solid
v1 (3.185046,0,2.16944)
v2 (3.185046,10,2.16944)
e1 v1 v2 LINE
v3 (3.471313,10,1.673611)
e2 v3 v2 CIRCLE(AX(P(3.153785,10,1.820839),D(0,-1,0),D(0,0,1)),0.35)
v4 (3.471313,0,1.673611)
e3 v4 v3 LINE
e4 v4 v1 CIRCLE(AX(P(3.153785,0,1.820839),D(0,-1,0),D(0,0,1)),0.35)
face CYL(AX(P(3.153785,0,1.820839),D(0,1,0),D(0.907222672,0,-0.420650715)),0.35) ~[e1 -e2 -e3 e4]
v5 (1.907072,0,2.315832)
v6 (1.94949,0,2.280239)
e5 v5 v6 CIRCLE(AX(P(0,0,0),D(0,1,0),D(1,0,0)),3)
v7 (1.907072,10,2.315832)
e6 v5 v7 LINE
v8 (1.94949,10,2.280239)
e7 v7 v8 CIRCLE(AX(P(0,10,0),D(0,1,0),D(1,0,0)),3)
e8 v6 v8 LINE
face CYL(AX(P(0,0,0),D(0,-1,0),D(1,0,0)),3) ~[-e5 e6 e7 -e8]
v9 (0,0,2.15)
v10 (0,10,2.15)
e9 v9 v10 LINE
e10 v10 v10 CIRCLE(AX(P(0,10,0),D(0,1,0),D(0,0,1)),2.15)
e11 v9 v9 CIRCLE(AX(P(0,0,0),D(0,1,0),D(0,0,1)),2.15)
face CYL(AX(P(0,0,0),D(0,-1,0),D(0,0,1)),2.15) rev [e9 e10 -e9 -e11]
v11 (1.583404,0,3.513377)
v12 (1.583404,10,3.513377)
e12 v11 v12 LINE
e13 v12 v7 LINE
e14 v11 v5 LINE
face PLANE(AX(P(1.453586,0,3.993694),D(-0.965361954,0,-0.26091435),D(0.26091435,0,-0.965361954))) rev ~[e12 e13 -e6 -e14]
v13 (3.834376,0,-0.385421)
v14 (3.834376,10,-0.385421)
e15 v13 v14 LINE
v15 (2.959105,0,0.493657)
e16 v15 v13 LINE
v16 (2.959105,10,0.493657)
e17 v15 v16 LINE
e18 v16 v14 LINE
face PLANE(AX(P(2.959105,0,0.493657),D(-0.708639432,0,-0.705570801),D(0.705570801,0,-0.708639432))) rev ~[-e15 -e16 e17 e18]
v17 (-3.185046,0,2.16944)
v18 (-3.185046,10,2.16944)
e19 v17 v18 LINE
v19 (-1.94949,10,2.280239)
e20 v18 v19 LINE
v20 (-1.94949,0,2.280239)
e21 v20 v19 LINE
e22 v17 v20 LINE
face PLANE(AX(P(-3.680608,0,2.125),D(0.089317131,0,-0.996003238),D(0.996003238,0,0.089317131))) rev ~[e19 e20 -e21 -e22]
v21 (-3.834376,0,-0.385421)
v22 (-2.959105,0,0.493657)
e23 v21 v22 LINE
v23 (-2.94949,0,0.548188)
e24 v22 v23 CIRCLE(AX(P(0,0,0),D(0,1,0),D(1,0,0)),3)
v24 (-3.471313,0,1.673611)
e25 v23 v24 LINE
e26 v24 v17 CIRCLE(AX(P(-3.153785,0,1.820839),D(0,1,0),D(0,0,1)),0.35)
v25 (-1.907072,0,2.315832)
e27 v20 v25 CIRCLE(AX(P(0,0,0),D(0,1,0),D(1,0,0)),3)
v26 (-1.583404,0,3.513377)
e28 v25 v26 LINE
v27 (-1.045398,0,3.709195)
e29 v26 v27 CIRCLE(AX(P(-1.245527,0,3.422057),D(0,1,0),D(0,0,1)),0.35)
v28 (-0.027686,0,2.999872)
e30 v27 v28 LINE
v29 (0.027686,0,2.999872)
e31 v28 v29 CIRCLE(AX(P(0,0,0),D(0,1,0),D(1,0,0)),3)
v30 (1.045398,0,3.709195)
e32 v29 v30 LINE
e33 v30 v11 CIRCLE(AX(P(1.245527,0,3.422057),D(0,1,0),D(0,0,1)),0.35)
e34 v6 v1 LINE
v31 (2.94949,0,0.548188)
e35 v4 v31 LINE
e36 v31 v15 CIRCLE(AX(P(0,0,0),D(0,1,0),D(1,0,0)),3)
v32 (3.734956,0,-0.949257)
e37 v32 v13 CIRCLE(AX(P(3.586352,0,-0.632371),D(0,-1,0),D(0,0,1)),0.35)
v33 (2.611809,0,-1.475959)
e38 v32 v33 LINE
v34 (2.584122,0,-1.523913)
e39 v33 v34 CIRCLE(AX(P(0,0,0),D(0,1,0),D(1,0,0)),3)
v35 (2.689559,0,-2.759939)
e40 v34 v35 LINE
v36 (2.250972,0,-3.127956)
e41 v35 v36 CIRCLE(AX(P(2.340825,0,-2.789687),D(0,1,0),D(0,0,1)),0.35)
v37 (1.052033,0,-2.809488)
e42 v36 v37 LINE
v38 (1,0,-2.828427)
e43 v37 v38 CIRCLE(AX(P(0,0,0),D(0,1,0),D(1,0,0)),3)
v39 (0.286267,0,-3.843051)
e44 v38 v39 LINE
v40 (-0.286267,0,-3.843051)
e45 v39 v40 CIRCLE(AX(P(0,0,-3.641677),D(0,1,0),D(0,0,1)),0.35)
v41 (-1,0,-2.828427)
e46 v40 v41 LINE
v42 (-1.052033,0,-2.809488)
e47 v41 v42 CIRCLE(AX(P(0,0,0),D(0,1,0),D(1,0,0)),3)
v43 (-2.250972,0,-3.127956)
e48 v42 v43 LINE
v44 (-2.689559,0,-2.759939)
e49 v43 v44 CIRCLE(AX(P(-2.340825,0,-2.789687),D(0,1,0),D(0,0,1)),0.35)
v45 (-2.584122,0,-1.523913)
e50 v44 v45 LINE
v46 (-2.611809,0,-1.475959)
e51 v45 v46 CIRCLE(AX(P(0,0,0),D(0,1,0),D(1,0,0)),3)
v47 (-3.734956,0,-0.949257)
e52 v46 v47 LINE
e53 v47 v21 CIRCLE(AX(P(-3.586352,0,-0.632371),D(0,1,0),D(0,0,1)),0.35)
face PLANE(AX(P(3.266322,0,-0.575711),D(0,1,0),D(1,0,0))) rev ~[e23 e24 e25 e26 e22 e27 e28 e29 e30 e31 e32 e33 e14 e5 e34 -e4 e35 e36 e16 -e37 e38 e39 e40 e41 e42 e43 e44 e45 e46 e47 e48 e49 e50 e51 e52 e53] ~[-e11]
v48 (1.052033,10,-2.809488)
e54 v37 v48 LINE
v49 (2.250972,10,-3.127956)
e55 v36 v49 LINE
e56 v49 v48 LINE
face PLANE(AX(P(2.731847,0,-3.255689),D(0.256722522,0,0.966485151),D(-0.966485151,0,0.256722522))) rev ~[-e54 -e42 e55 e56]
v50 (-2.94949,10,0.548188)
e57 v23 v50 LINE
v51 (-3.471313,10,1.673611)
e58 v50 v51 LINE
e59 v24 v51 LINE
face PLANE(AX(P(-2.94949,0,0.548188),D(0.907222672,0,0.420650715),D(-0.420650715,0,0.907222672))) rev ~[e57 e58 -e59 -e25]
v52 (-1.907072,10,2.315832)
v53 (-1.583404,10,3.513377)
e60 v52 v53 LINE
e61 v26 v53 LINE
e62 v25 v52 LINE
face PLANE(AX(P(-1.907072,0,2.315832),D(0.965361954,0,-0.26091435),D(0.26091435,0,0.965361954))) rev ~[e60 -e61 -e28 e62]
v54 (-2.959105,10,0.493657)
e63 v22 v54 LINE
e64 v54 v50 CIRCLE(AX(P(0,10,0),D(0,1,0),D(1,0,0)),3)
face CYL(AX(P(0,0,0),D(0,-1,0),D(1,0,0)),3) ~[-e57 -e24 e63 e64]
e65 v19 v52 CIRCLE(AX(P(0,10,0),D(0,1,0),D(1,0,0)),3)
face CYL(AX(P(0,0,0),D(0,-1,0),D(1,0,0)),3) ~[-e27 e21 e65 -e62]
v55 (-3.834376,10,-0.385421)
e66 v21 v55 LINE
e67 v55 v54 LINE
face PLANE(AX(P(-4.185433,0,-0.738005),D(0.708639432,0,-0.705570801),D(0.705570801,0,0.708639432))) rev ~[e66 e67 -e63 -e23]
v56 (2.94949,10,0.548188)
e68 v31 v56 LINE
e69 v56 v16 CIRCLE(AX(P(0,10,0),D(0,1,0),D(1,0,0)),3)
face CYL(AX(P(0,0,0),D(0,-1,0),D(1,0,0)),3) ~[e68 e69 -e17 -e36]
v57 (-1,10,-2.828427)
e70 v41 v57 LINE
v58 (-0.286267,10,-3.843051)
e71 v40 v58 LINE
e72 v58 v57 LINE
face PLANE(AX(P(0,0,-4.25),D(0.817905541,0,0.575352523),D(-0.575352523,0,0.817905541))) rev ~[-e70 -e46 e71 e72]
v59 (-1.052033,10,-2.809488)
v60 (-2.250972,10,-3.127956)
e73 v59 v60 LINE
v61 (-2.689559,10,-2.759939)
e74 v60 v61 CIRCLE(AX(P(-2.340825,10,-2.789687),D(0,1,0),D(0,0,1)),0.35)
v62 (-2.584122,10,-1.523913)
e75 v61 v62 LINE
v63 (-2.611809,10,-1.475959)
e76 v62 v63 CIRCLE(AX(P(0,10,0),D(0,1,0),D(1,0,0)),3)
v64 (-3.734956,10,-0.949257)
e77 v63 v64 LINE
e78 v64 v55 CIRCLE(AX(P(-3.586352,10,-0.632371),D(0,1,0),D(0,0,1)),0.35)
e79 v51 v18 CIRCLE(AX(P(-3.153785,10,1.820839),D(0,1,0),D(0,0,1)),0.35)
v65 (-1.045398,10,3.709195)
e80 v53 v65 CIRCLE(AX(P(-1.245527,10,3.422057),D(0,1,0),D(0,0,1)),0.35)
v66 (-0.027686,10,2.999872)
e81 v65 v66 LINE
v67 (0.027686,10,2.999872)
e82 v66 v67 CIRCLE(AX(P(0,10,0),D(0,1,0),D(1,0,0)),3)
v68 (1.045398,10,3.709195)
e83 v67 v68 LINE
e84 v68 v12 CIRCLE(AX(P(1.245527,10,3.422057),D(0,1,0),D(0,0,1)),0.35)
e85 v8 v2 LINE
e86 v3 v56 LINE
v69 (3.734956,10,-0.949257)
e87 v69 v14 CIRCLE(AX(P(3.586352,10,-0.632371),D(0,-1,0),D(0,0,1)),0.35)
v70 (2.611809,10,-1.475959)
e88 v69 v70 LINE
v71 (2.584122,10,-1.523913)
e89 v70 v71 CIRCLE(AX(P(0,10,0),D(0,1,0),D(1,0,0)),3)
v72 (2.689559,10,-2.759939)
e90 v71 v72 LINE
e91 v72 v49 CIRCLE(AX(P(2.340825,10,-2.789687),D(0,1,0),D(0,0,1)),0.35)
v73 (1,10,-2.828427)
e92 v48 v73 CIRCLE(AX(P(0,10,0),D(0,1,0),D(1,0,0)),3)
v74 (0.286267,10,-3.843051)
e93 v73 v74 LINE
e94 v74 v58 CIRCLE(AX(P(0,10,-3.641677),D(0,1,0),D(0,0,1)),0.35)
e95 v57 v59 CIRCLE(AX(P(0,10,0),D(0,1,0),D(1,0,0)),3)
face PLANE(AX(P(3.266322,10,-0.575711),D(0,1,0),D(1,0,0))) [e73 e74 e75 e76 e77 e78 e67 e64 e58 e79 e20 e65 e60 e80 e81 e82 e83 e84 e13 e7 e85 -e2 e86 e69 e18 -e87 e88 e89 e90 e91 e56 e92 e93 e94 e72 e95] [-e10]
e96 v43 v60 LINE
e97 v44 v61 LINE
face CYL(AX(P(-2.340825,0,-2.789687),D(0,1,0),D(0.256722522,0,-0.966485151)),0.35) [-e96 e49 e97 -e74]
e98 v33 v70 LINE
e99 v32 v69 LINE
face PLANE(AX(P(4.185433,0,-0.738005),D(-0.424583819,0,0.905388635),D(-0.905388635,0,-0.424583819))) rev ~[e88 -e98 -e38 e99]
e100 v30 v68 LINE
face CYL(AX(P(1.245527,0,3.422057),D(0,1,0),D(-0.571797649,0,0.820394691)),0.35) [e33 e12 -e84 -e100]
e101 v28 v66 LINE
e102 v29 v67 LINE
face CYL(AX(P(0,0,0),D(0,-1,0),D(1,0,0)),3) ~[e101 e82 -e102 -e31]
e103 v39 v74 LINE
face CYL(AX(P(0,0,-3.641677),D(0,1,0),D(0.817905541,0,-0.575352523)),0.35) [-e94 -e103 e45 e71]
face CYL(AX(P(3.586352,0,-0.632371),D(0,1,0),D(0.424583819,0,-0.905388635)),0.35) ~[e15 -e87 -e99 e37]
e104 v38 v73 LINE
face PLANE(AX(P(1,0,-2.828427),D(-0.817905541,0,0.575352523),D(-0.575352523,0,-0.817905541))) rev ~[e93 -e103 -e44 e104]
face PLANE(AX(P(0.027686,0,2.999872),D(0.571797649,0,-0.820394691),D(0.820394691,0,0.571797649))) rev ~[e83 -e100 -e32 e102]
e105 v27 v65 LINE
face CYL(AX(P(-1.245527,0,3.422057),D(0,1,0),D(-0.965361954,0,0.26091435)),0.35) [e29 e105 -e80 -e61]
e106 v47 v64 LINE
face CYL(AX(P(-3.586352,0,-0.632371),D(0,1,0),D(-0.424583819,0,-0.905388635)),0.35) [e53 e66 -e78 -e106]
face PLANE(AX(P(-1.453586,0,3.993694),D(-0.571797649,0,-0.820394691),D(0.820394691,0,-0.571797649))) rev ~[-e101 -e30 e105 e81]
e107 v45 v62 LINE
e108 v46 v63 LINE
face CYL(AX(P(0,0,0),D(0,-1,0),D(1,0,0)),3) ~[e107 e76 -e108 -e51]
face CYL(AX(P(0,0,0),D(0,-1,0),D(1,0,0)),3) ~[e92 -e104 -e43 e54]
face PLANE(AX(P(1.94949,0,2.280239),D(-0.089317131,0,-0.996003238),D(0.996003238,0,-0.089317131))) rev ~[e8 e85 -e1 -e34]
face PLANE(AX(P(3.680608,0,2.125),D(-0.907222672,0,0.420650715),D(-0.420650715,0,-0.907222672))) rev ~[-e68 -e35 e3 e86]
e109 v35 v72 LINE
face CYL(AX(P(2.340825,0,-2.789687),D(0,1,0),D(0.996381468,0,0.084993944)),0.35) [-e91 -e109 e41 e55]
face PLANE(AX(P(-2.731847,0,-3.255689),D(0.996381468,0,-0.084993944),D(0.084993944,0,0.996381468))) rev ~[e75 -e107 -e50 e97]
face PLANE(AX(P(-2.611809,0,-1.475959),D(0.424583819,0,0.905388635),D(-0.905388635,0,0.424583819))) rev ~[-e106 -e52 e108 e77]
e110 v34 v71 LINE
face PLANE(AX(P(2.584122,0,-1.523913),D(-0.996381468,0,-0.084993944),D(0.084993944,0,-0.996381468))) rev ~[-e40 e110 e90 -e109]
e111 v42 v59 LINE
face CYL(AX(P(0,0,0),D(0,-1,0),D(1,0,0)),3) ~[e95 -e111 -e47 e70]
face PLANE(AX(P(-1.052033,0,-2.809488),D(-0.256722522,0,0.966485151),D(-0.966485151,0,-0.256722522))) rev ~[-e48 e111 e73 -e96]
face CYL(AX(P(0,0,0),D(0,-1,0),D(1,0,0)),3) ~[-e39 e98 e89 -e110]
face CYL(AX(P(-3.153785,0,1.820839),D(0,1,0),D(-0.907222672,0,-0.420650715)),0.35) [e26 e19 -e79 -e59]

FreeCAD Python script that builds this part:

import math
import FreeCAD as App
import Part
import Sketcher

V = App.Vector
Q = App.Units.Quantity


def edges_at(feature, points):
    """Names of the edges that pass closest to the given points."""
    edges = feature.Shape.Edges
    near = lambda p: min(range(len(edges)), key=lambda i: edges[i].distToShape(Part.Vertex(*p))[0])
    return sorted({f"Edge{near(p) + 1}" for p in points})

doc = App.newDocument("Part")
body = doc.addObject("PartDesign::Body", "Body")

sketch1 = doc.addObject("Sketcher::SketchObject", "Sketch")
body.addObject(sketch1)
sketch1.AttachmentSupport = (doc.XZ_Plane, [""])
sketch1.MapMode = "FlatFace"
sketch1.addGeometry(Part.LineSegment(V(1, -2.83, 0), V(0, -4.25, 0)), False)
sketch1.addGeometry(Part.LineSegment(V(0, -4.25, 0), V(-1, -2.83, 0)), False)
sketch1.addGeometry(Part.ArcOfCircle(Part.Circle(V(0, 0, 0), V(0, 0, 1), 3), math.radians(-110.53), math.radians(-109.47)), False)
sketch1.addGeometry(Part.LineSegment(V(-1.05, -2.81, 0), V(-2.73, -3.26, 0)), False)
sketch1.addGeometry(Part.LineSegment(V(-2.73, -3.26, 0), V(-2.58, -1.52, 0)), False)
sketch1.addGeometry(Part.ArcOfCircle(Part.Circle(V(0, 0, 0), V(0, 0, 1), 3), math.radians(-150.53), math.radians(-149.47)), False)
sketch1.addGeometry(Part.LineSegment(V(-2.61, -1.48, 0), V(-4.19, -0.74, 0)), False)
sketch1.addGeometry(Part.LineSegment(V(-4.19, -0.74, 0), V(-2.96, 0.49, 0)), False)
sketch1.addGeometry(Part.ArcOfCircle(Part.Circle(V(0, 0, 0), V(0, 0, 1), 3), math.radians(169.47), math.radians(170.53)), False)
sketch1.addGeometry(Part.LineSegment(V(-2.95, 0.55, 0), V(-3.68, 2.12, 0)), False)
sketch1.addGeometry(Part.LineSegment(V(-3.68, 2.12, 0), V(-1.95, 2.28, 0)), False)
sketch1.addGeometry(Part.ArcOfCircle(Part.Circle(V(0, 0, 0), V(0, 0, 1), 3), math.radians(129.47), math.radians(130.53)), False)
sketch1.addGeometry(Part.LineSegment(V(-1.91, 2.32, 0), V(-1.45, 3.99, 0)), False)
sketch1.addGeometry(Part.LineSegment(V(-1.45, 3.99, 0), V(-0.03, 3, 0)), False)
sketch1.addGeometry(Part.ArcOfCircle(Part.Circle(V(0, 0, 0), V(0, 0, 1), 3), math.radians(89.47), math.radians(90.53)), False)
sketch1.addGeometry(Part.LineSegment(V(0.03, 3, 0), V(1.45, 3.99, 0)), False)
sketch1.addGeometry(Part.LineSegment(V(1.45, 3.99, 0), V(1.91, 2.32, 0)), False)
sketch1.addGeometry(Part.ArcOfCircle(Part.Circle(V(0, 0, 0), V(0, 0, 1), 3), math.radians(49.47), math.radians(50.53)), False)
sketch1.addGeometry(Part.LineSegment(V(1.95, 2.28, 0), V(3.68, 2.12, 0)), False)
sketch1.addGeometry(Part.LineSegment(V(3.68, 2.12, 0), V(2.95, 0.55, 0)), False)
sketch1.addGeometry(Part.ArcOfCircle(Part.Circle(V(0, 0, 0), V(0, 0, 1), 3), math.radians(9.47), math.radians(10.53)), False)
sketch1.addGeometry(Part.LineSegment(V(2.96, 0.49, 0), V(4.19, -0.74, 0)), False)
sketch1.addGeometry(Part.LineSegment(V(4.19, -0.74, 0), V(2.61, -1.48, 0)), False)
sketch1.addGeometry(Part.ArcOfCircle(Part.Circle(V(0, 0, 0), V(0, 0, 1), 3), math.radians(-30.53), math.radians(-29.47)), False)
sketch1.addGeometry(Part.LineSegment(V(2.58, -1.52, 0), V(2.73, -3.26, 0)), False)
sketch1.addGeometry(Part.LineSegment(V(2.73, -3.26, 0), V(1.05, -2.81, 0)), False)
sketch1.addGeometry(Part.ArcOfCircle(Part.Circle(V(0, 0, 0), V(0, 0, 1), 3), math.radians(-70.53), math.radians(-69.47)), False)
sketch1.addGeometry(Part.Circle(V(0, 0, 0), V(0, 0, 1), 2.15), False)
sketch1.addConstraint(Sketcher.Constraint("Coincident", 0, 2, 1, 1))
sketch1.addConstraint(Sketcher.Constraint("Coincident", 1, 2, 2, 2))
sketch1.addConstraint(Sketcher.Constraint("Coincident", 2, 1, 3, 1))
sketch1.addConstraint(Sketcher.Constraint("Coincident", 3, 2, 4, 1))
sketch1.addConstraint(Sketcher.Constraint("Coincident", 4, 2, 5, 2))
sketch1.addConstraint(Sketcher.Constraint("Coincident", 5, 1, 6, 1))
sketch1.addConstraint(Sketcher.Constraint("Coincident", 6, 2, 7, 1))
sketch1.addConstraint(Sketcher.Constraint("Coincident", 7, 2, 8, 2))
sketch1.addConstraint(Sketcher.Constraint("Coincident", 8, 1, 9, 1))
sketch1.addConstraint(Sketcher.Constraint("Coincident", 9, 2, 10, 1))
sketch1.addConstraint(Sketcher.Constraint("Coincident", 10, 2, 11, 2))
sketch1.addConstraint(Sketcher.Constraint("Coincident", 11, 1, 12, 1))
sketch1.addConstraint(Sketcher.Constraint("Coincident", 12, 2, 13, 1))
sketch1.addConstraint(Sketcher.Constraint("Coincident", 13, 2, 14, 2))
sketch1.addConstraint(Sketcher.Constraint("Coincident", 14, 1, 15, 1))
sketch1.addConstraint(Sketcher.Constraint("Coincident", 15, 2, 16, 1))
sketch1.addConstraint(Sketcher.Constraint("Coincident", 16, 2, 17, 2))
sketch1.addConstraint(Sketcher.Constraint("Coincident", 17, 1, 18, 1))
sketch1.addConstraint(Sketcher.Constraint("Coincident", 18, 2, 19, 1))
sketch1.addConstraint(Sketcher.Constraint("Coincident", 19, 2, 20, 2))
sketch1.addConstraint(Sketcher.Constraint("Coincident", 20, 1, 21, 1))
sketch1.addConstraint(Sketcher.Constraint("Coincident", 21, 2, 22, 1))
sketch1.addConstraint(Sketcher.Constraint("Coincident", 22, 2, 23, 2))
sketch1.addConstraint(Sketcher.Constraint("Coincident", 23, 1, 24, 1))
sketch1.addConstraint(Sketcher.Constraint("Coincident", 24, 2, 25, 1))
sketch1.addConstraint(Sketcher.Constraint("Coincident", 25, 2, 26, 2))
sketch1.addConstraint(Sketcher.Constraint("Coincident", 26, 1, 0, 1))
sketch1.addConstraint(Sketcher.Constraint("Coincident", 2, 3, -1, 1))
sketch1.addConstraint(Sketcher.Constraint("Coincident", 5, 3, -1, 1))
sketch1.addConstraint(Sketcher.Constraint("Coincident", 8, 3, -1, 1))
sketch1.addConstraint(Sketcher.Constraint("Coincident", 11, 3, -1, 1))
sketch1.addConstraint(Sketcher.Constraint("Coincident", 14, 3, -1, 1))
sketch1.addConstraint(Sketcher.Constraint("Coincident", 17, 3, -1, 1))
sketch1.addConstraint(Sketcher.Constraint("Coincident", 20, 3, -1, 1))
sketch1.addConstraint(Sketcher.Constraint("Coincident", 23, 3, -1, 1))
sketch1.addConstraint(Sketcher.Constraint("Coincident", 26, 3, -1, 1))
sketch1.addConstraint(Sketcher.Constraint("Coincident", 27, 3, -1, 1))
sketch1.addConstraint(Sketcher.Constraint("Equal", 2, 5))
sketch1.addConstraint(Sketcher.Constraint("Equal", 5, 8))
sketch1.addConstraint(Sketcher.Constraint("Equal", 8, 11))
sketch1.addConstraint(Sketcher.Constraint("Equal", 11, 14))
sketch1.addConstraint(Sketcher.Constraint("Equal", 14, 17))
sketch1.addConstraint(Sketcher.Constraint("Equal", 17, 20))
sketch1.addConstraint(Sketcher.Constraint("Equal", 20, 23))
sketch1.addConstraint(Sketcher.Constraint("Equal", 23, 26))
sketch1.addConstraint(Sketcher.Constraint("Symmetric", 12, 2, 15, 2, -2))
sketch1.addConstraint(Sketcher.Constraint("Symmetric", 9, 2, 18, 2, -2))
sketch1.addConstraint(Sketcher.Constraint("Symmetric", 6, 2, 21, 2, -2))
sketch1.addConstraint(Sketcher.Constraint("Symmetric", 3, 2, 24, 2, -2))
sketch1.addConstraint(Sketcher.Constraint("PointOnObject", 0, 2, -2))
sketch1.addConstraint(Sketcher.Constraint("Horizontal", 13, 2, 14, 1))
sketch1.addConstraint(Sketcher.Constraint("Horizontal", 11, 1, 16, 2))
sketch1.addConstraint(Sketcher.Constraint("Horizontal", 10, 2, 17, 1))
sketch1.addConstraint(Sketcher.Constraint("Horizontal", 8, 1, 19, 2))
sketch1.addConstraint(Sketcher.Constraint("Horizontal", 7, 2, 20, 1))
sketch1.addConstraint(Sketcher.Constraint("Horizontal", 5, 1, 22, 2))
sketch1.addConstraint(Sketcher.Constraint("Horizontal", 4, 2, 23, 1))
sketch1.addConstraint(Sketcher.Constraint("Horizontal", 2, 1, 25, 2))
sketch1.addConstraint(Sketcher.Constraint("Horizontal", 1, 2, 26, 1))
sketch1.addConstraint(Sketcher.Constraint("Equal", 1, 3))
sketch1.addConstraint(Sketcher.Constraint("Equal", 3, 4))
sketch1.addConstraint(Sketcher.Constraint("Equal", 4, 6))
sketch1.addConstraint(Sketcher.Constraint("Equal", 6, 7))
sketch1.addConstraint(Sketcher.Constraint("Equal", 7, 9))
sketch1.addConstraint(Sketcher.Constraint("Equal", 9, 10))
sketch1.addConstraint(Sketcher.Constraint("Equal", 10, 12))
sketch1.addConstraint(Sketcher.Constraint("Equal", 12, 13))
sketch1.addConstraint(Sketcher.Constraint("Radius", 2, Q("3 mm")))
sketch1.addConstraint(Sketcher.Constraint("Diameter", 27, Q("4.3 mm")))
sketch1.addConstraint(Sketcher.Constraint("DistanceX", 1, 2, -1, 1, Q("1 mm")))
sketch1.addConstraint(Sketcher.Constraint("DistanceX", 8, 1, 10, 2, Q("1 mm")))
sketch1.addConstraint(Sketcher.Constraint("DistanceY", 0, 2, -1, 1, Q("4.25 mm")))
sketch1.addConstraint(Sketcher.Constraint("DistanceY", -1, 1, 9, 2, Q("2.125 mm")))
sketch1.addConstraint(Sketcher.Constraint("DistanceY", 3, 2, 2, 1, Q("0.4462 mm")))
sketch1.addConstraint(Sketcher.Constraint("DistanceX", 6, 2, 2, 1, Q("3.133399 mm")))
sketch1.addConstraint(Sketcher.Constraint("DistanceY", 4, 2, 8, 1, Q("2.072101 mm")))
sketch1.addConstraint(Sketcher.Constraint("DistanceX", 9, 2, 5, 1, Q("1.068799 mm")))
sketch1.addConstraint(Sketcher.Constraint("DistanceX", 12, 2, 13, 2, Q("1.425899 mm")))
sketch1.addConstraint(Sketcher.Constraint("DistanceX", 11, 1, -1, 1, Q("1.907072 mm")))
pad1 = doc.addObject("PartDesign::Pad", "Pad")
body.addObject(pad1)
pad1.Profile = sketch1
pad1.Length = 10
pad1.Reversed = True
doc.recompute()

fillet = doc.addObject("PartDesign::Fillet", "Fillet")
body.addObject(fillet)
fillet.Base = (pad1, edges_at(pad1, [
    (0, 5, -4.25),
    (2.732, 5, -3.256),
    (4.185, 5, -0.738),
    (3.681, 5, 2.125),
    (1.454, 5, 3.994),
    (-1.454, 5, 3.994),
    (-3.681, 5, 2.125),
    (-4.185, 5, -0.738),
    (-2.732, 5, -3.256),
]))
fillet.Radius = 0.35

doc.recompute()
